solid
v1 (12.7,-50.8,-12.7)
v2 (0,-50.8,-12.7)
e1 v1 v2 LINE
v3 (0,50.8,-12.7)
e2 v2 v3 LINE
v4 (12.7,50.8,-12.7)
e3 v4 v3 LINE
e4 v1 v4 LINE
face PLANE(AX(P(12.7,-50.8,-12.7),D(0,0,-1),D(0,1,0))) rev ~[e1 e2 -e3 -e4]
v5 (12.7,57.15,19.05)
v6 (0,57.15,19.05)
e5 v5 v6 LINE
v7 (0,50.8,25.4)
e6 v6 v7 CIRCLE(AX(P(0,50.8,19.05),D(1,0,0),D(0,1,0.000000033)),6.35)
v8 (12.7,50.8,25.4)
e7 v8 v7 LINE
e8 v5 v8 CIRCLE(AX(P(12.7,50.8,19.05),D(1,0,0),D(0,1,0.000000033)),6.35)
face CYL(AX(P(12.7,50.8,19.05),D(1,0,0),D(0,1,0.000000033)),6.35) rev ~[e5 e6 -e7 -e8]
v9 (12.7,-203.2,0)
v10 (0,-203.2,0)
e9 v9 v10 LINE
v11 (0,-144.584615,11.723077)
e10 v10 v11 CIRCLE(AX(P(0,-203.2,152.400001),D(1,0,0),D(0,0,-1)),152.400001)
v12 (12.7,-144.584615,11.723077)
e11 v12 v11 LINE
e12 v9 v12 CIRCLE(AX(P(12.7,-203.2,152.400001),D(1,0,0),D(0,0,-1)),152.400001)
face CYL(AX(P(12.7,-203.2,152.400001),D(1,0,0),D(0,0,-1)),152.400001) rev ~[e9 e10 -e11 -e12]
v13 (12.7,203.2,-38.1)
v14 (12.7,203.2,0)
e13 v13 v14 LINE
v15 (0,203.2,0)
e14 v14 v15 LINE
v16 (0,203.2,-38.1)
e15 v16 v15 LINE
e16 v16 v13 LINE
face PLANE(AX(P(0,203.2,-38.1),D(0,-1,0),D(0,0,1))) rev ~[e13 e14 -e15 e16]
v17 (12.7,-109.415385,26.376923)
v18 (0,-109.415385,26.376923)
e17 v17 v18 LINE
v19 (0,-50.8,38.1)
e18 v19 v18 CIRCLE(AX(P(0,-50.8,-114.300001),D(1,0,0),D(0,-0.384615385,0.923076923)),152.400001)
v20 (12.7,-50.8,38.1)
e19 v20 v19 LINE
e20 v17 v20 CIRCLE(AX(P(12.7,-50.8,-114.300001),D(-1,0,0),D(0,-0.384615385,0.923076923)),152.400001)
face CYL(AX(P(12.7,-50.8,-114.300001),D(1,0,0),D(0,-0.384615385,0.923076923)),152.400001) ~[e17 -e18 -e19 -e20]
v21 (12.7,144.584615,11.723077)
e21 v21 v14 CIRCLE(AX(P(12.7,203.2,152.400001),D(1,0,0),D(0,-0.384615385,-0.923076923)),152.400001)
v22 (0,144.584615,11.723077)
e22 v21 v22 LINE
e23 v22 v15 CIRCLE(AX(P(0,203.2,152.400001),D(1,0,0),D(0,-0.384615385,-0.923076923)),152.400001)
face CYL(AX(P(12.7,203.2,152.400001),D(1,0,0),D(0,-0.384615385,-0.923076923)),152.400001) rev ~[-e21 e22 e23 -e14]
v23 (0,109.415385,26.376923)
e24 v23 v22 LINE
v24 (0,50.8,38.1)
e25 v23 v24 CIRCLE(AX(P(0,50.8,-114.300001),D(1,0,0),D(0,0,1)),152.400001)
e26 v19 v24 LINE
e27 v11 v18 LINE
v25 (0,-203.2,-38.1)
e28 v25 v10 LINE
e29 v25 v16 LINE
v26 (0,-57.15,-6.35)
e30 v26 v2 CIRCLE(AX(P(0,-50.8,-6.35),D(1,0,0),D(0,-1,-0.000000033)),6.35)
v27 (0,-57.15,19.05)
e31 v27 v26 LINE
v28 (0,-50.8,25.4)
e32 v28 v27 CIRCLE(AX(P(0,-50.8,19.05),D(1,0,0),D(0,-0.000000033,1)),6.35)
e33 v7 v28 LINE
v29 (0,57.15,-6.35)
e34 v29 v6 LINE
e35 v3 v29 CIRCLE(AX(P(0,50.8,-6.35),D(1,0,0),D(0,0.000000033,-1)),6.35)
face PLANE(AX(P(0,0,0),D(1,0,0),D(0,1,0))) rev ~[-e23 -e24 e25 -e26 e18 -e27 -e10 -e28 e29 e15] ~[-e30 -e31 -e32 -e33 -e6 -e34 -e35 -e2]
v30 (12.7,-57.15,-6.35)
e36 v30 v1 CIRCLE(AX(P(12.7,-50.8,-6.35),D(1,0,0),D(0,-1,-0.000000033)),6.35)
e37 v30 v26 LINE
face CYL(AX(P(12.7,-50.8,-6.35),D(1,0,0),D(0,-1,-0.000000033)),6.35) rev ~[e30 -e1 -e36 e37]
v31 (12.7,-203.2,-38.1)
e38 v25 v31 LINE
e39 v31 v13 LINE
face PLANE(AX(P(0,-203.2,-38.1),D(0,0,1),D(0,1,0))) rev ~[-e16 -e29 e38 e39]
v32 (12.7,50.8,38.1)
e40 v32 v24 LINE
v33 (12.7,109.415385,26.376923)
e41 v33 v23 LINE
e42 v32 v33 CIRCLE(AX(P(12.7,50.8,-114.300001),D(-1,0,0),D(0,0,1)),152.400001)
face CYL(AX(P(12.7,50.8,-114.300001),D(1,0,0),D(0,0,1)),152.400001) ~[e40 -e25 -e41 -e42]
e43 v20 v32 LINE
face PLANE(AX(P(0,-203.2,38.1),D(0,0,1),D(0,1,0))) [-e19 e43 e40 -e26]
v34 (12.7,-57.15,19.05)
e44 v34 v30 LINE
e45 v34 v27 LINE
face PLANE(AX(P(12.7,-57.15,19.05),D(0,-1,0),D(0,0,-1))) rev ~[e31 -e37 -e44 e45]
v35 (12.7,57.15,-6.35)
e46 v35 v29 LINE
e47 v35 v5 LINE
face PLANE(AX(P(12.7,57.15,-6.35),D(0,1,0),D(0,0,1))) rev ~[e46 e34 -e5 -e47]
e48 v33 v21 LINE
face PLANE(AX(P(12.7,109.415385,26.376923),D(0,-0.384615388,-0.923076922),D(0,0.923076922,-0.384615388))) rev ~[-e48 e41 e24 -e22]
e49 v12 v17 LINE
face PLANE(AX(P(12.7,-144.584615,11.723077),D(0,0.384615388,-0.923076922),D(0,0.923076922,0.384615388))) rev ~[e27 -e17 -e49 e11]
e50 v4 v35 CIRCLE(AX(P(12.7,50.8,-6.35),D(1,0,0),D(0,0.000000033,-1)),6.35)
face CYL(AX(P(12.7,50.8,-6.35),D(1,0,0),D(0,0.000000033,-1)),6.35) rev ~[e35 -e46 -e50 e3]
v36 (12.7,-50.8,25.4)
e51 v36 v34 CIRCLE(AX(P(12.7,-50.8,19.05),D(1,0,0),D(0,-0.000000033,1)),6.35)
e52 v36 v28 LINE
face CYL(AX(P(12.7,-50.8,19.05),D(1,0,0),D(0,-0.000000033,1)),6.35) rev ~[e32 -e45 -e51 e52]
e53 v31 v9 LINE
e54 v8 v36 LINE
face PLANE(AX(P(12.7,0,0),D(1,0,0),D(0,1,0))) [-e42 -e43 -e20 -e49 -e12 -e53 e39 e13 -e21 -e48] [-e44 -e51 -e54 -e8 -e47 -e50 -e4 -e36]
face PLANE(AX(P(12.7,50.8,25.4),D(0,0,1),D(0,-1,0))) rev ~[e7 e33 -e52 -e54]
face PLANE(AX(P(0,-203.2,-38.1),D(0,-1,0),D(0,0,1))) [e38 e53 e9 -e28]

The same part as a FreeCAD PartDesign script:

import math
import FreeCAD as App
import Part
import Sketcher
from FreeCAD import Vector
Q = App.Units.Quantity

doc = App.newDocument("Part")
body = doc.addObject("PartDesign::Body", "Body")

# Sketch on YZ plane
sketch1 = body.newObject("Sketcher::SketchObject", "Sketch")
sketch1.AttachmentSupport = (doc.getObject("YZ_Plane"), [""])
sketch1.MapMode = "FlatFace"
sketch1.addGeometry(Part.LineSegment(Vector(-203, 38, 0), Vector(-203, -38, 0)), False)
sketch1.addGeometry(Part.LineSegment(Vector(-203, -38, 0), Vector(203, -38, 0)), False)
sketch1.addGeometry(Part.LineSegment(Vector(203, -38, 0), Vector(203, 38, 0)), False)
sketch1.addGeometry(Part.LineSegment(Vector(203, 38, 0), Vector(-203, 38, 0)), False)
sketch1.addConstraint(Sketcher.Constraint("Coincident", 0, 2, 1, 1))
sketch1.addConstraint(Sketcher.Constraint("Coincident", 1, 2, 2, 1))
sketch1.addConstraint(Sketcher.Constraint("Coincident", 2, 2, 3, 1))
sketch1.addConstraint(Sketcher.Constraint("Coincident", 3, 2, 0, 1))
sketch1.addConstraint(Sketcher.Constraint("Vertical", 0))
sketch1.addConstraint(Sketcher.Constraint("Horizontal", 1))
sketch1.addConstraint(Sketcher.Constraint("Vertical", 2))
sketch1.addConstraint(Sketcher.Constraint("Horizontal", 3))
sketch1.addConstraint(Sketcher.Constraint("Symmetric", 0, 2, 2, 2, -1, 1))
sketch1.addConstraint(Sketcher.Constraint("DistanceX", 1, 1, 1, 2, Q("16 in")))
sketch1.addConstraint(Sketcher.Constraint("DistanceY", 0, 2, 0, 1, Q("3 in")))
pad1 = body.newObject("PartDesign::Pad", "Pad")
pad1.Profile = sketch1
pad1.Length = Q("0.5 in")

# Sketch on YZ plane
sketch2 = body.newObject("Sketcher::SketchObject", "Sketch001")
sketch2.AttachmentSupport = (doc.getObject("YZ_Plane"), [""])
sketch2.MapMode = "FlatFace"
sketch2.AttachmentOffset = App.Placement(Vector(0, 0, 0.5 * 25.4), App.Rotation())
sketch2.addGeometry(Part.LineSegment(Vector(51, 25, 0), Vector(-51, 25, 0)), False)
sketch2.addGeometry(Part.ArcOfCircle(Part.Circle(Vector(-51, 19, 0), Vector(0, 0, 1), 6), math.radians(90), math.radians(180)), False)
sketch2.addGeometry(Part.LineSegment(Vector(-57, 19, 0), Vector(-57, -6, 0)), False)
sketch2.addGeometry(Part.ArcOfCircle(Part.Circle(Vector(-51, -6, 0), Vector(0, 0, 1), 6), math.radians(-180), math.radians(-90)), False)
sketch2.addGeometry(Part.LineSegment(Vector(-51, -13, 0), Vector(51, -13, 0)), False)
sketch2.addGeometry(Part.ArcOfCircle(Part.Circle(Vector(51, -6, 0), Vector(0, 0, 1), 6), math.radians(-90), math.radians(0)), False)
sketch2.addGeometry(Part.LineSegment(Vector(57, -6, 0), Vector(57, 19, 0)), False)
sketch2.addGeometry(Part.ArcOfCircle(Part.Circle(Vector(51, 19, 0), Vector(0, 0, 1), 6), math.radians(0), math.radians(90)), False)
sketch2.addConstraint(Sketcher.Constraint("Tangent", 0, 2, 1, 1))
sketch2.addConstraint(Sketcher.Constraint("Tangent", 1, 2, 2, 1))
sketch2.addConstraint(Sketcher.Constraint("Tangent", 2, 2, 3, 1))
sketch2.addConstraint(Sketcher.Constraint("Tangent", 3, 2, 4, 1))
sketch2.addConstraint(Sketcher.Constraint("Tangent", 4, 2, 5, 1))
sketch2.addConstraint(Sketcher.Constraint("Tangent", 5, 2, 6, 1))
sketch2.addConstraint(Sketcher.Constraint("Tangent", 6, 2, 7, 1))
sketch2.addConstraint(Sketcher.Constraint("Tangent", 7, 2, 0, 1))
sketch2.addConstraint(Sketcher.Constraint("Horizontal", 0))
sketch2.addConstraint(Sketcher.Constraint("Vertical", 2))
sketch2.addConstraint(Sketcher.Constraint("Horizontal", 4))
sketch2.addConstraint(Sketcher.Constraint("Vertical", 6))
sketch2.addConstraint(Sketcher.Constraint("Equal", 1, 3))
sketch2.addConstraint(Sketcher.Constraint("Equal", 3, 5))
sketch2.addConstraint(Sketcher.Constraint("Equal", 5, 7))
sketch2.addConstraint(Sketcher.Constraint("DistanceX", 0, 2, 0, 1, Q("4 in")))
sketch2.addConstraint(Sketcher.Constraint("DistanceY", 2, 2, 2, 1, Q("1 in")))
sketch2.addConstraint(Sketcher.Constraint("Radius", 1, Q("0.25 in")))
sketch2.addConstraint(Sketcher.Constraint("DistanceX", 1, 3, -1, 1, Q("2 in")))
sketch2.addConstraint(Sketcher.Constraint("DistanceY", -1, 1, 0, 2, Q("1 in")))
pocket1 = body.newObject("PartDesign::Pocket", "Pocket")
pocket1.Profile = sketch2
pocket1.Length = Q("2.46 in")

# Sketch on YZ plane
sketch3 = body.newObject("Sketcher::SketchObject", "Sketch002")
sketch3.AttachmentSupport = (doc.getObject("YZ_Plane"), [""])
sketch3.MapMode = "FlatFace"
sketch3.AttachmentOffset = App.Placement(Vector(0, 0, 0.5 * 25.4), App.Rotation())
sketch3.addGeometry(Part.LineSegment(Vector(-203, 38, 0), Vector(-203, 0, 0)), False)
sketch3.addGeometry(Part.ArcOfCircle(Part.Circle(Vector(-203, 152, 0), Vector(0, 0, 1), 152), math.radians(-90), math.radians(-67)), False)
sketch3.addGeometry(Part.LineSegment(Vector(-145, 12, 0), Vector(-109, 26, 0)), False)
sketch3.addGeometry(Part.ArcOfCircle(Part.Circle(Vector(-51, -114, 0), Vector(0, 0, 1), 152), math.radians(90), math.radians(113)), False)
sketch3.addGeometry(Part.LineSegment(Vector(-51, 38, 0), Vector(-203, 38, 0)), False)
sketch3.addGeometry(Part.LineSegment(Vector(109, 26, 0), Vector(145, 12, 0)), False)
sketch3.addGeometry(Part.ArcOfCircle(Part.Circle(Vector(203, 152, 0), Vector(0, 0, 1), 152), math.radians(-113), math.radians(-90)), False)
sketch3.addGeometry(Part.LineSegment(Vector(203, 0, 0), Vector(203, 38, 0)), False)
sketch3.addGeometry(Part.LineSegment(Vector(203, 38, 0), Vector(51, 38, 0)), False)
sketch3.addGeometry(Part.ArcOfCircle(Part.Circle(Vector(51, -114, 0), Vector(0, 0, 1), 152), math.radians(67), math.radians(90)), False)
sketch3.addConstraint(Sketcher.Constraint("Coincident", 0, 2, 1, 1))
sketch3.addConstraint(Sketcher.Constraint("Tangent", 1, 2, 2, 1))
sketch3.addConstraint(Sketcher.Constraint("Tangent", 2, 2, 3, 2))
sketch3.addConstraint(Sketcher.Constraint("Tangent", 3, 1, 4, 1))
sketch3.addConstraint(Sketcher.Constraint("Coincident", 4, 2, 0, 1))
sketch3.addConstraint(Sketcher.Constraint("Tangent", 5, 2, 6, 1))
sketch3.addConstraint(Sketcher.Constraint("Coincident", 6, 2, 7, 1))
sketch3.addConstraint(Sketcher.Constraint("Coincident", 7, 2, 8, 1))
sketch3.addConstraint(Sketcher.Constraint("Tangent", 8, 2, 9, 2))
sketch3.addConstraint(Sketcher.Constraint("Tangent", 9, 1, 5, 1))
sketch3.addConstraint(Sketcher.Constraint("Vertical", 0))
sketch3.addConstraint(Sketcher.Constraint("Horizontal", 4))
sketch3.addConstraint(Sketcher.Constraint("Vertical", 7))
sketch3.addConstraint(Sketcher.Constraint("Horizontal", 8))
sketch3.addConstraint(Sketcher.Constraint("Equal", 1, 3))
sketch3.addConstraint(Sketcher.Constraint("Equal", 3, 6))
sketch3.addConstraint(Sketcher.Constraint("Equal", 6, 9))
sketch3.addConstraint(Sketcher.Constraint("Symmetric", 0, 2, 6, 2, -1, 1))
sketch3.addConstraint(Sketcher.Constraint("Symmetric", 1, 3, 6, 3, -2))
sketch3.addConstraint(Sketcher.Constraint("Symmetric", 3, 3, 9, 3, -2))
sketch3.addConstraint(Sketcher.Constraint("Vertical", 1, 3, 0, 2))
sketch3.addConstraint(Sketcher.Constraint("Radius", 1, Q("6 in")))
sketch3.addConstraint(Sketcher.Constraint("DistanceX", 4, 2, 4, 1, Q("6 in")))
sketch3.addConstraint(Sketcher.Constraint("DistanceY", 0, 2, 0, 1, Q("1.5 in")))
sketch3.addConstraint(Sketcher.Constraint("DistanceX", 1, 3, -1, 1, Q("8 in")))
pocket2 = body.newObject("PartDesign::Pocket", "Pocket001")
pocket2.Profile = sketch3
pocket2.Length = Q("1.52 in")

doc.recompute()
